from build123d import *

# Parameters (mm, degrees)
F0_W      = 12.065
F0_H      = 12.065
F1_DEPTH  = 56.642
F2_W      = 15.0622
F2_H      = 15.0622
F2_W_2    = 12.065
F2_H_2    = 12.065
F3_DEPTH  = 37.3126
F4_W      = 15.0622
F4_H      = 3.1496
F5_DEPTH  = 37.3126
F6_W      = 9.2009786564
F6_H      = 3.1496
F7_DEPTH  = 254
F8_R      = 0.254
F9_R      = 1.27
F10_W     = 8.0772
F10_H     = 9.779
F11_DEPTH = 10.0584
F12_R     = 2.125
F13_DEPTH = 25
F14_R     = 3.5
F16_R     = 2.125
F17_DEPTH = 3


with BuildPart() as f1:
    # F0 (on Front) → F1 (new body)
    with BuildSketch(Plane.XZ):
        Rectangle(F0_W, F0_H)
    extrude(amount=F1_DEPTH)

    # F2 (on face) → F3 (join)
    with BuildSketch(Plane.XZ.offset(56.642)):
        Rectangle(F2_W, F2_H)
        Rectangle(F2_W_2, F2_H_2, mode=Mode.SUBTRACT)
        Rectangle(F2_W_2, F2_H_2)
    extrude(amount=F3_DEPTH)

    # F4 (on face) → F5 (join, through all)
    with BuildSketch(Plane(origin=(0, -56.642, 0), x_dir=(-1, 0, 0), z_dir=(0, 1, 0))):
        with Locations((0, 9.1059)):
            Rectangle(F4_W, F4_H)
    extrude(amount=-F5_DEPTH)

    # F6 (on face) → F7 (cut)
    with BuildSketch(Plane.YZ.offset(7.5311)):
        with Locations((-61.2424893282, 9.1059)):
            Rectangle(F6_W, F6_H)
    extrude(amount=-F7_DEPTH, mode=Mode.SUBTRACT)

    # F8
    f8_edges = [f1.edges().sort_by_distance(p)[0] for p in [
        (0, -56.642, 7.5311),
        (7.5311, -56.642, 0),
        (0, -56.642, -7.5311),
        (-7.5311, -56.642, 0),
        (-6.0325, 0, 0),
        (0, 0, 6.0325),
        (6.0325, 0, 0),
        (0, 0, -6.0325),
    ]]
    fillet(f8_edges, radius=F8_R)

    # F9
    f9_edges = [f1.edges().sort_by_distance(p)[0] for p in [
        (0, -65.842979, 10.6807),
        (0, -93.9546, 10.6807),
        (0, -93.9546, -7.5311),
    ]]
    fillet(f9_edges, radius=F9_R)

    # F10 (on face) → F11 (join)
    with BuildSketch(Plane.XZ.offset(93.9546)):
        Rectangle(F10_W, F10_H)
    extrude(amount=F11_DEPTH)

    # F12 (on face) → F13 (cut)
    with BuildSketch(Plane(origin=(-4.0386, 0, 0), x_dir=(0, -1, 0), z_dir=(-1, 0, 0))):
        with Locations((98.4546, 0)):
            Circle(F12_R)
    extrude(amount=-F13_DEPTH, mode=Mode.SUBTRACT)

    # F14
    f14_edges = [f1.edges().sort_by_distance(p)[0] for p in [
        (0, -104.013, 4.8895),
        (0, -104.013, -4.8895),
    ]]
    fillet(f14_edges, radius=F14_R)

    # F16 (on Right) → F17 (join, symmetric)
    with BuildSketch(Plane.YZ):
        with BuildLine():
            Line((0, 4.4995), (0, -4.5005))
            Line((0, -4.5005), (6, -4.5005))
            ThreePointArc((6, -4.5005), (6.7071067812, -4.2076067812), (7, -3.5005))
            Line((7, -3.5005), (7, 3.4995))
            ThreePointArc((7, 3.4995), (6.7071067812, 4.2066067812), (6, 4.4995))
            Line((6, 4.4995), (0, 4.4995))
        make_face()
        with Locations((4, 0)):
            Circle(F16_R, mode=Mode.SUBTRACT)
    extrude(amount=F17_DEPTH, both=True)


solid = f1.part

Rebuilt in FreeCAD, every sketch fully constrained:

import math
import FreeCAD as App
import Part
import Sketcher
from FreeCAD import Vector
Q = App.Units.Quantity


def edges_at(feature, points):
    """Names of the edges that pass closest to the given points."""
    edges = feature.Shape.Edges
    near = lambda p: min(range(len(edges)), key=lambda i: edges[i].distToShape(Part.Vertex(*p))[0])
    return sorted({f"Edge{near(p) + 1}" for p in points})


def add_polygon(sketch, points):
    """Adds a closed chain of lines whose ends are joined by coincident constraints."""
    first, n = sketch.GeometryCount, len(points)
    for a, b in zip(points, points[1:] + points[:1]):
        sketch.addGeometry(Part.LineSegment(App.Vector(*a, 0), App.Vector(*b, 0)), False)
    for i in range(n):
        sketch.addConstraint(Sketcher.Constraint("Coincident", first + i, 2, first + (i + 1) % n, 1))

doc = App.newDocument("Part")
body = doc.addObject("PartDesign::Body", "Body")

# Sketch on XZ plane
sketch1 = doc.addObject("Sketcher::SketchObject", "Sketch")
body.addObject(sketch1)
sketch1.AttachmentSupport = (doc.XZ_Plane, [""])
sketch1.MapMode = "FlatFace"
add_polygon(sketch1, [(-6, 6), (-6, -6), (6, -6), (6, 6)])  # lines 0-3
sketch1.addConstraint([
    Sketcher.Constraint("Vertical", 0),
    Sketcher.Constraint("Horizontal", 1),
    Sketcher.Constraint("Vertical", 2),
    Sketcher.Constraint("Horizontal", 3),
    Sketcher.Constraint("Symmetric", 0, 2, 2, 2, -1, 1),
    Sketcher.Constraint("Equal", 3, 0),
    Sketcher.Constraint("DistanceX", 1, 1, 1, 2, Q("0.475 in")),
])
pad1 = doc.addObject("PartDesign::Pad", "Pad")
body.addObject(pad1)
pad1.Profile = sketch1
pad1.Length = Q("2.23 in")

# Sketch on XZ plane
sketch2 = doc.addObject("Sketcher::SketchObject", "Sketch001")
body.addObject(sketch2)
sketch2.AttachmentSupport = (doc.XZ_Plane, [""])
sketch2.MapMode = "FlatFace"
sketch2.AttachmentOffset = App.Placement(Vector(0, 0, 2.23 * 25.4), App.Rotation())
add_polygon(sketch2, [(-8, 8), (-8, -8), (8, -8), (8, 8)])  # lines 0-3
sketch2.addConstraint([
    Sketcher.Constraint("Vertical", 0),
    Sketcher.Constraint("Horizontal", 1),
    Sketcher.Constraint("Vertical", 2),
    Sketcher.Constraint("Horizontal", 3),
    Sketcher.Constraint("Symmetric", 0, 2, 2, 2, -1, 1),
    Sketcher.Constraint("Equal", 3, 0),
    Sketcher.Constraint("DistanceX", 1, 1, 1, 2, Q("0.593 in")),
])
pad2 = doc.addObject("PartDesign::Pad", "Pad001")
body.addObject(pad2)
pad2.Profile = sketch2
pad2.Length = Q("1.469 in")

# Sketch on XZ plane
sketch3 = doc.addObject("Sketcher::SketchObject", "Sketch002")
body.addObject(sketch3)
sketch3.AttachmentSupport = (doc.XZ_Plane, [""])
sketch3.MapMode = "FlatFace"
sketch3.AttachmentOffset = App.Placement(Vector(0, 0, 2.23 * 25.4), App.Rotation())
add_polygon(sketch3, [(7.5, 10.7), (7.5, 7.5), (-7.5, 7.5), (-7.5, 10.7)])  # lines 0-3
sketch3.addConstraint([
    Sketcher.Constraint("Vertical", 0),
    Sketcher.Constraint("Horizontal", 1),
    Sketcher.Constraint("Vertical", 2),
    Sketcher.Constraint("Horizontal", 3),
    Sketcher.Constraint("DistanceX", 1, 2, 1, 1, Q("0.593 in")),
    Sketcher.Constraint("DistanceY", 0, 2, 0, 1, Q("0.124 in")),
    Sketcher.Constraint("DistanceX", -1, 1, 0, 2, Q("0.2965 in")),
    Sketcher.Constraint("DistanceY", -1, 1, 0, 2, Q("0.2965 in")),
])
pad3 = doc.addObject("PartDesign::Pad", "Pad002")
body.addObject(pad3)
pad3.Profile = sketch3
pad3.Length = Q("1.469 in")

# Sketch on YZ plane
sketch4 = doc.addObject("Sketcher::SketchObject", "Sketch003")
body.addObject(sketch4)
sketch4.AttachmentSupport = (doc.YZ_Plane, [""])
sketch4.MapMode = "FlatFace"
sketch4.AttachmentOffset = App.Placement(Vector(0, 0, 0.2965 * 25.4), App.Rotation())
add_polygon(sketch4, [(-65.8, 10.7), (-65.8, 7.5), (-56.6, 7.5), (-56.6, 10.7)])  # lines 0-3
sketch4.addConstraint([
    Sketcher.Constraint("Vertical", 0),
    Sketcher.Constraint("Horizontal", 1),
    Sketcher.Constraint("Vertical", 2),
    Sketcher.Constraint("Horizontal", 3),
    Sketcher.Constraint("DistanceY", 0, 2, 0, 1, Q("0.124 in")),
    Sketcher.Constraint("DistanceX", 1, 2, -1, 1, Q("2.23 in")),
    Sketcher.Constraint("DistanceY", -1, 1, 0, 2, Q("0.2965 in")),
    Sketcher.Constraint("DistanceX", 1, 1, 1, 2, 9.200979),
])
pocket1 = doc.addObject("PartDesign::Pocket", "Pocket")
body.addObject(pocket1)
pocket1.Profile = sketch4
pocket1.Length = Q("10 in")
doc.recompute()

fillet = doc.addObject("PartDesign::Fillet", "Fillet")
body.addObject(fillet)
fillet.Base = (pocket1, edges_at(pocket1, [
    (0, -56.642, 7.531),
    (7.531, -56.642, 0),
    (0, -56.642, -7.531),
    (-7.531, -56.642, 0),
    (-6.032, 0, 0),
    (0, 0, 6.032),
    (6.032, 0, 0),
    (0, 0, -6.032),
]))
fillet.Radius = Q("0.01 in")
doc.recompute()

fillet2 = doc.addObject("PartDesign::Fillet", "Fillet001")
body.addObject(fillet2)
fillet2.Base = (fillet, edges_at(fillet, [(0, -65.843, 10.681), (0, -93.955, 10.681), (0, -93.955, -7.531)]))
fillet2.Radius = Q("0.05 in")

# Sketch on XZ plane
sketch5 = doc.addObject("Sketcher::SketchObject", "Sketch004")
body.addObject(sketch5)
sketch5.AttachmentSupport = (doc.XZ_Plane, [""])
sketch5.MapMode = "FlatFace"
sketch5.AttachmentOffset = App.Placement(Vector(0, 0, 3.699 * 25.4), App.Rotation())
add_polygon(sketch5, [(-4, 5), (-4, -5), (4, -5), (4, 5)])  # lines 0-3
sketch5.addConstraint([
    Sketcher.Constraint("Vertical", 0),
    Sketcher.Constraint("Horizontal", 1),
    Sketcher.Constraint("Vertical", 2),
    Sketcher.Constraint("Horizontal", 3),
    Sketcher.Constraint("Symmetric", 0, 2, 2, 2, -1, 1),
    Sketcher.Constraint("DistanceX", 1, 1, 1, 2, Q("0.318 in")),
    Sketcher.Constraint("DistanceY", 0, 2, 0, 1, Q("0.385 in")),
])
pad4 = doc.addObject("PartDesign::Pad", "Pad003")
body.addObject(pad4)
pad4.Profile = sketch5
pad4.Length = Q("0.396 in")

# Sketch on YZ plane
sketch6 = doc.addObject("Sketcher::SketchObject", "Sketch005")
body.addObject(sketch6)
sketch6.AttachmentSupport = (doc.YZ_Plane, [""])
sketch6.MapMode = "FlatFace"
sketch6.AttachmentOffset = App.Placement(Vector(0, 0, -0.159 * 25.4), App.Rotation())
sketch6.addGeometry(Part.Circle(Vector(-98.5, 0, 0), Vector(0, 0, 1), 2.1), False)
sketch6.addConstraint([
    Sketcher.Constraint("PointOnObject", 0, 3, -1),
    Sketcher.Constraint("Diameter", 0, 4.25),
    Sketcher.Constraint("DistanceX", 0, 3, -1, 1, 98.4546),
])
pocket2 = doc.addObject("PartDesign::Pocket", "Pocket001")
body.addObject(pocket2)
pocket2.Profile = sketch6
pocket2.Length = 25
pocket2.Reversed = True
doc.recompute()

fillet3 = doc.addObject("PartDesign::Fillet", "Fillet002")
body.addObject(fillet3)
fillet3.Base = (pocket2, edges_at(pocket2, [(0, -104.013, 4.889), (0, -104.013, -4.889)]))
fillet3.Radius = 3.5

# Sketch on YZ plane
sketch7 = doc.addObject("Sketcher::SketchObject", "Sketch006")
body.addObject(sketch7)
sketch7.AttachmentSupport = (doc.YZ_Plane, [""])
sketch7.MapMode = "FlatFace"
sketch7.addGeometry([
    Part.LineSegment(Vector(0, 4.5, 0), Vector(0, -4.5, 0)),  # 0
    Part.LineSegment(Vector(0, -4.5, 0), Vector(6, -4.5, 0)),  # 1
    Part.ArcOfCircle(Part.Circle(Vector(6, -3.5, 0), Vector(0, 0, 1), 1), math.radians(-90), math.radians(0)),  # 2
    Part.LineSegment(Vector(7, -3.5, 0), Vector(7, 3.5, 0)),  # 3
    Part.ArcOfCircle(Part.Circle(Vector(6, 3.5, 0), Vector(0, 0, 1), 1), math.radians(0), math.radians(90)),  # 4
    Part.LineSegment(Vector(6, 4.5, 0), Vector(0, 4.5, 0)),  # 5
    Part.Circle(Vector(4, 0, 0), Vector(0, 0, 1), 2.1),  # 6
], False)
sketch7.addConstraint([
    Sketcher.Constraint("Coincident", 0, 2, 1, 1),
    Sketcher.Constraint("Tangent", 1, 2, 2, 1),
    Sketcher.Constraint("Tangent", 2, 2, 3, 1),
    Sketcher.Constraint("Tangent", 3, 2, 4, 1),
    Sketcher.Constraint("Tangent", 4, 2, 5, 1),
    Sketcher.Constraint("Coincident", 5, 2, 0, 1),
    Sketcher.Constraint("Vertical", 0),
    Sketcher.Constraint("Horizontal", 1),
    Sketcher.Constraint("Vertical", 3),
    Sketcher.Constraint("Horizontal", 5),
    Sketcher.Constraint("Equal", 2, 4),
    Sketcher.Constraint("PointOnObject", 6, 3, -1),
    Sketcher.Constraint("PointOnObject", 0, 2, -2),
    Sketcher.Constraint("Diameter", 6, 4.25),
    Sketcher.Constraint("Radius", 2, 1.0),
    Sketcher.Constraint("DistanceX", 1, 1, 1, 2, 6.0),
    Sketcher.Constraint("DistanceY", 0, 2, 0, 1, 9.0),
    Sketcher.Constraint("DistanceY", 2, 3, -1, 1, 3.5005),
    Sketcher.Constraint("DistanceX", -1, 1, 6, 3, 4.0),
])
pad5 = doc.addObject("PartDesign::Pad", "Pad004")
body.addObject(pad5)
pad5.Profile = sketch7
pad5.Length = 6
pad5.Midplane = True

doc.recompute()
